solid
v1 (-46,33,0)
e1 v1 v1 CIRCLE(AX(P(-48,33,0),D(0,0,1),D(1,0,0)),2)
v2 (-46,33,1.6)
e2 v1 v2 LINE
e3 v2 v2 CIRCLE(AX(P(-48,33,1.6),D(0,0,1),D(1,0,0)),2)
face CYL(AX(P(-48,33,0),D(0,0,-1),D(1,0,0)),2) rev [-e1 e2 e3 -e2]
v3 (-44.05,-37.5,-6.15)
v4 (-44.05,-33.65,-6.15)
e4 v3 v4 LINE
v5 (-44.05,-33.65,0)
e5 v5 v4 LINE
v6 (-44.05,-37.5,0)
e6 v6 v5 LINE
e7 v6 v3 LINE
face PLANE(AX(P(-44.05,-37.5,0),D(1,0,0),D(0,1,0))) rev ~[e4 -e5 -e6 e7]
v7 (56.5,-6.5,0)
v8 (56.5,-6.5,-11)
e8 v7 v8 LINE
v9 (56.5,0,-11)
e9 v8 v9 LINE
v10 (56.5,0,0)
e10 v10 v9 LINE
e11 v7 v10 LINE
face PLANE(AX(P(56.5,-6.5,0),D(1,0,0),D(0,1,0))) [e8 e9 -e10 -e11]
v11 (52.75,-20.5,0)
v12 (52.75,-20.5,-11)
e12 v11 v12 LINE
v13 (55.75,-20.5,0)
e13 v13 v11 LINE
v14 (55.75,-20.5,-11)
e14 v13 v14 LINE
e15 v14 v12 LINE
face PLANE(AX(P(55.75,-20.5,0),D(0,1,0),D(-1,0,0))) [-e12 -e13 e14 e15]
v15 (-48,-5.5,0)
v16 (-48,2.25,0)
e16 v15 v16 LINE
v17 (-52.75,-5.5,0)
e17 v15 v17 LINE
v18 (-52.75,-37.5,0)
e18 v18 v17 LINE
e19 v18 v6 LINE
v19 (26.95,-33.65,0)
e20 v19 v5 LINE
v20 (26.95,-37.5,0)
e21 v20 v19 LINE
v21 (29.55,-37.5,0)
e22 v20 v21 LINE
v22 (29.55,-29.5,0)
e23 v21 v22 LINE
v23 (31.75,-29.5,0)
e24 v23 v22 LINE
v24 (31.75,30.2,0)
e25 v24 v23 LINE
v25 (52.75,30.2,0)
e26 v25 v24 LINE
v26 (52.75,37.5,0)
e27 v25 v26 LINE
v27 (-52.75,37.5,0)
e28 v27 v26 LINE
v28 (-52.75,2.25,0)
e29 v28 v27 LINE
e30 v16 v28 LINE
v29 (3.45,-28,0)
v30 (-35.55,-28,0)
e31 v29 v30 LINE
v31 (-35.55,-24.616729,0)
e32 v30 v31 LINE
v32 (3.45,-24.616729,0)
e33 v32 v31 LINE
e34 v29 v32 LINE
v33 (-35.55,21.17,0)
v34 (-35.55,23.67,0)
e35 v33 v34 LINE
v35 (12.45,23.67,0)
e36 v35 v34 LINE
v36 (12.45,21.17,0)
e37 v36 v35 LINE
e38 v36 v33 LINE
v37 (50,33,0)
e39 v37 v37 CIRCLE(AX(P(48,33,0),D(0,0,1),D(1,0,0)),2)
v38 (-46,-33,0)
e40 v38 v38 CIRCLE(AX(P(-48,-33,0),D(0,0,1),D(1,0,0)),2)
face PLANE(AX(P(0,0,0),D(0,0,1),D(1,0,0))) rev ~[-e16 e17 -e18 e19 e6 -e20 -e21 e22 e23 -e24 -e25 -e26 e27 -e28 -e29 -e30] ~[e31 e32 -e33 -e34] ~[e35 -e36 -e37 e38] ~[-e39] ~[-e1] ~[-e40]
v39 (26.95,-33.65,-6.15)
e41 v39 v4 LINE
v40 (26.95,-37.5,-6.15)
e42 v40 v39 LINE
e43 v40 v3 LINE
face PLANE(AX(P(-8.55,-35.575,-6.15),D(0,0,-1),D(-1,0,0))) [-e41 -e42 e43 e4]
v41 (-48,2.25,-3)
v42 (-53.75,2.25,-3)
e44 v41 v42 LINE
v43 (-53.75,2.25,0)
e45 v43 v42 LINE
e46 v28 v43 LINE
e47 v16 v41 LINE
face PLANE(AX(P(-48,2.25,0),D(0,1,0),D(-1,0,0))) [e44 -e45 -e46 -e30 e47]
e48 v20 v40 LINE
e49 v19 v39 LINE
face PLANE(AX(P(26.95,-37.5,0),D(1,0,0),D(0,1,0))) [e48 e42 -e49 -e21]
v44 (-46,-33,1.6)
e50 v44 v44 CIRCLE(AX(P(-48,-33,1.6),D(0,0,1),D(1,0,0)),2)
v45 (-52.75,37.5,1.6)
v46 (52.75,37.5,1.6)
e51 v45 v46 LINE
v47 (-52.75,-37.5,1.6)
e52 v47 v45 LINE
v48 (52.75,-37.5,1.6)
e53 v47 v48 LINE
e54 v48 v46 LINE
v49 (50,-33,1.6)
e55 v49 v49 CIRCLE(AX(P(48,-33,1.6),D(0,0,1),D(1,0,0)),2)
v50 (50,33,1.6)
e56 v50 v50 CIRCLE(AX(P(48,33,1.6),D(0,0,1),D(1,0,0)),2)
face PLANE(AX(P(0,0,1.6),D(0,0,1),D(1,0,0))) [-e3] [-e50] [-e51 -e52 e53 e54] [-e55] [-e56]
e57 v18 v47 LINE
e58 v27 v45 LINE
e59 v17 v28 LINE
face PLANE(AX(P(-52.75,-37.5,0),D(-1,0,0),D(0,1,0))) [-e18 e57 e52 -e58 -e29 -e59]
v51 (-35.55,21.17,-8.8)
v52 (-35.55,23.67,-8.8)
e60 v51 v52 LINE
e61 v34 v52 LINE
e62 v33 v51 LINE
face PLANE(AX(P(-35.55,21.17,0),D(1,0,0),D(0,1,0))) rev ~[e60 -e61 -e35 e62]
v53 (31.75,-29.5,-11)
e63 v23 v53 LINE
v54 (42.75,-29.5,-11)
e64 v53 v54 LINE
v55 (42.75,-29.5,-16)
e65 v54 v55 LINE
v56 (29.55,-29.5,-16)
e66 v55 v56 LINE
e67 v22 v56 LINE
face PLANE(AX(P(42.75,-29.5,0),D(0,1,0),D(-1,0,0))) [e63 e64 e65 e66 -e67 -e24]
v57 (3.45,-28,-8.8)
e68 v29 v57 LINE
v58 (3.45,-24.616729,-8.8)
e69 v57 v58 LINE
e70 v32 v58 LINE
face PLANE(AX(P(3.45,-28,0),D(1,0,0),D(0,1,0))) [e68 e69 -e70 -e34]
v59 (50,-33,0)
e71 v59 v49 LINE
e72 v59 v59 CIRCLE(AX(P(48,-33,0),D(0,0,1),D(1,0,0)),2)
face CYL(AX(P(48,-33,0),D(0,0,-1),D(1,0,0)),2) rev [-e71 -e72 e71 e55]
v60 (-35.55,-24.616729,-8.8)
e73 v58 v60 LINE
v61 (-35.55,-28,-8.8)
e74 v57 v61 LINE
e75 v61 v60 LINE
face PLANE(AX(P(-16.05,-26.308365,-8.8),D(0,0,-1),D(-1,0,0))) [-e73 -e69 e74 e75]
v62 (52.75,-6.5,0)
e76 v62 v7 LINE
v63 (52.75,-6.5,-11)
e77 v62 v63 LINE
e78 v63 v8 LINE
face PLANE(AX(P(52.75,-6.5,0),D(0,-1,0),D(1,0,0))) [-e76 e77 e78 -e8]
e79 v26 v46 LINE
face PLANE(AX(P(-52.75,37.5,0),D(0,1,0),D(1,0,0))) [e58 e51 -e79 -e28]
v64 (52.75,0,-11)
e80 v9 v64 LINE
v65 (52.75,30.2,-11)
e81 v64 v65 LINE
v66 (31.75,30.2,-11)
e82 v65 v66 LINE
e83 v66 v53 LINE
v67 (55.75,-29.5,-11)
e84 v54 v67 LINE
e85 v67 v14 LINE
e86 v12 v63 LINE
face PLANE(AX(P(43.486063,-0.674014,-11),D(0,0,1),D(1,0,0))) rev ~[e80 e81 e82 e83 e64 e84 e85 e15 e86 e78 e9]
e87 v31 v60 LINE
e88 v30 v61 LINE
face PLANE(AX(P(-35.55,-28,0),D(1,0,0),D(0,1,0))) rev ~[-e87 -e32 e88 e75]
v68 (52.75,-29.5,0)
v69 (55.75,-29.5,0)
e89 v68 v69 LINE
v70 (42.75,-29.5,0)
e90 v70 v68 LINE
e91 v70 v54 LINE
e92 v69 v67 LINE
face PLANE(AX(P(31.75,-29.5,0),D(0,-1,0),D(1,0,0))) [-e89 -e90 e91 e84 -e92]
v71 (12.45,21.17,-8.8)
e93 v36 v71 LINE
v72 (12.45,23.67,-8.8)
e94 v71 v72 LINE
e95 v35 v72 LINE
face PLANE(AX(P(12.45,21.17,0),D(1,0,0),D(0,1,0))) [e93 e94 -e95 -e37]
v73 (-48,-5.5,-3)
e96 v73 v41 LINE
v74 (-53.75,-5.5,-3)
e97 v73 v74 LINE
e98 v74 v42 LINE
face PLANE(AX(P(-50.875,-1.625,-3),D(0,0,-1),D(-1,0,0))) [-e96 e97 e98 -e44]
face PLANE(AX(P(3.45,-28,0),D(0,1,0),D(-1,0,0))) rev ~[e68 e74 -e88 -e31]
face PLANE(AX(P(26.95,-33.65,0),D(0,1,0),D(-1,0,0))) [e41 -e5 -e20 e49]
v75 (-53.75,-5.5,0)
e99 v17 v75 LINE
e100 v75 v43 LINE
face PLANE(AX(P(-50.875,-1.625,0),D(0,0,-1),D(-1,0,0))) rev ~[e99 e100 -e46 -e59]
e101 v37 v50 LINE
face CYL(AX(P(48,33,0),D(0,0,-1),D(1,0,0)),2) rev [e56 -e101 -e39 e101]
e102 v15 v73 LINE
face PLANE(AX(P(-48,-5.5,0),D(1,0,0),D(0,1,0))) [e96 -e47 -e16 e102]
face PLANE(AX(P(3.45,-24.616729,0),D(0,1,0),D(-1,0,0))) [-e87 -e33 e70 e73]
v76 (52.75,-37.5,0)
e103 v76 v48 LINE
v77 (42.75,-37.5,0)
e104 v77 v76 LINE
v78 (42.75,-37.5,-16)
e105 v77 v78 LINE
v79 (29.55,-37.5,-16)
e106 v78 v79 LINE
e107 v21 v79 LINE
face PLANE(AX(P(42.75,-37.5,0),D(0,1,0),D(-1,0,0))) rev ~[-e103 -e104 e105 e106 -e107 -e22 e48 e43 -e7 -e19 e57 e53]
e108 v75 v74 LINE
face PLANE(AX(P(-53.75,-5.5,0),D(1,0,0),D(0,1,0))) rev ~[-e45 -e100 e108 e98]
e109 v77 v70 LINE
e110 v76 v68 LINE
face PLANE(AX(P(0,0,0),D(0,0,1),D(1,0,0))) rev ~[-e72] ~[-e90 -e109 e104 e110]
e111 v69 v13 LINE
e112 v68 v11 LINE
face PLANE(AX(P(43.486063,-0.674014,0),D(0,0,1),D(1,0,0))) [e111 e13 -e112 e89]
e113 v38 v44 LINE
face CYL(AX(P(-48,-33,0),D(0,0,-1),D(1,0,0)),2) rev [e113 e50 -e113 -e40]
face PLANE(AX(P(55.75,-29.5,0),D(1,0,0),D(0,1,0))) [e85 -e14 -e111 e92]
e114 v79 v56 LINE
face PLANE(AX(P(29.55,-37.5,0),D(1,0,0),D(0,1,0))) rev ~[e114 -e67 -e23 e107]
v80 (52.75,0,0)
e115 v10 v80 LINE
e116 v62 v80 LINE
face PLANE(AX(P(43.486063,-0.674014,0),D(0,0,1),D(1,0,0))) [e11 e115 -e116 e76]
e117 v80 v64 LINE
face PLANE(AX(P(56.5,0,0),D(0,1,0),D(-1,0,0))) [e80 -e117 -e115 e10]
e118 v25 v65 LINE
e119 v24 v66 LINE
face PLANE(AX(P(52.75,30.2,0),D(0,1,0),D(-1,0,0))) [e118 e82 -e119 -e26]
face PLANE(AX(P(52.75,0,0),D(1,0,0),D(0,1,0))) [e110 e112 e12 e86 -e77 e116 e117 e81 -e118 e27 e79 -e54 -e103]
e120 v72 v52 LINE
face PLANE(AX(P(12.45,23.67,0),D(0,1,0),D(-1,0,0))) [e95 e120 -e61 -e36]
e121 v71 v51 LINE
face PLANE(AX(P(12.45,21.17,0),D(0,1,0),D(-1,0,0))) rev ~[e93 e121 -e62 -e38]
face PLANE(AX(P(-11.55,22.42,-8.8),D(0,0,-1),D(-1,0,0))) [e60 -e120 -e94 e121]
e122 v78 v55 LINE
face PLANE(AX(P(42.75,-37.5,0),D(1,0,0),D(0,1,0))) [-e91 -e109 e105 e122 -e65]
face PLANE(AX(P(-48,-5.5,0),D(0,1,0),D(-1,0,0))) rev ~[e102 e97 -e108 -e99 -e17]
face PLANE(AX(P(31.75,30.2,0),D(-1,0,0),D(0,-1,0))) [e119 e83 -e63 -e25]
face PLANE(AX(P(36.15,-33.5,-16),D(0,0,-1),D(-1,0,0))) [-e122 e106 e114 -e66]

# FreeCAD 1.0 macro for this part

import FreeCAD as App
import Part
import Sketcher

doc = App.newDocument("Part")
body = doc.addObject("PartDesign::Body", "Body")

# Sketch on XY plane
sketch1 = body.newObject("Sketcher::SketchObject", "Sketch")
sketch1.AttachmentSupport = (doc.getObject("XY_Plane"), [""])
sketch1.MapMode = "FlatFace"
sketch1.addGeometry([
    Part.LineSegment(App.Vector(-52.8, 37.5, 0), App.Vector(-52.8, -37.5, 0)),  # 0
    Part.LineSegment(App.Vector(-52.8, -37.5, 0), App.Vector(52.8, -37.5, 0)),  # 1
    Part.LineSegment(App.Vector(52.8, -37.5, 0), App.Vector(52.8, 37.5, 0)),  # 2
    Part.LineSegment(App.Vector(52.8, 37.5, 0), App.Vector(-52.8, 37.5, 0)),  # 3
    Part.Circle(App.Vector(-48, -33, 0), App.Vector(0, 0, 1), 2),  # 4
    Part.Circle(App.Vector(48, -33, 0), App.Vector(0, 0, 1), 2),  # 5
    Part.Circle(App.Vector(-48, 33, 0), App.Vector(0, 0, 1), 2),  # 6
    Part.Circle(App.Vector(48, 33, 0), App.Vector(0, 0, 1), 2),  # 7
], False)
sketch1.addConstraint([
    Sketcher.Constraint("Coincident", 0, 2, 1, 1),
    Sketcher.Constraint("Coincident", 1, 2, 2, 1),
    Sketcher.Constraint("Coincident", 2, 2, 3, 1),
    Sketcher.Constraint("Coincident", 3, 2, 0, 1),
    Sketcher.Constraint("Vertical", 0),
    Sketcher.Constraint("Horizontal", 1),
    Sketcher.Constraint("Vertical", 2),
    Sketcher.Constraint("Horizontal", 3),
    Sketcher.Constraint("Equal", 4, 5),
    Sketcher.Constraint("Equal", 5, 6),
    Sketcher.Constraint("Equal", 6, 7),
    Sketcher.Constraint("Symmetric", 5, 3, 6, 3, -1, 1),
    Sketcher.Constraint("Symmetric", 4, 3, 7, 3, -1, 1),
    Sketcher.Constraint("Symmetric", 0, 2, 2, 2, -1, 1),
    Sketcher.Constraint("Symmetric", 4, 3, 5, 3, -2),
    Sketcher.Constraint("Diameter", 4, 4.0),
    Sketcher.Constraint("DistanceY", 0, 2, 0, 1, 75.0),
    Sketcher.Constraint("DistanceX", 1, 1, 1, 2, 105.5),
    Sketcher.Constraint("DistanceX", 4, 3, -1, 1, 48.0),
    Sketcher.Constraint("DistanceY", 4, 3, -1, 1, 33.0),
])
pad1 = body.newObject("PartDesign::Pad", "Pad")
pad1.Profile = sketch1
pad1.Length = 1.6

# Sketch on XY plane
sketch2 = body.newObject("Sketcher::SketchObject", "Sketch001")
sketch2.AttachmentSupport = (doc.getObject("XY_Plane"), [""])
sketch2.MapMode = "FlatFace"
sketch2.addGeometry([
    Part.LineSegment(App.Vector(31.8, 30.2, 0), App.Vector(52.8, 30.2, 0)),  # 0
    Part.LineSegment(App.Vector(52.8, 30.2, 0), App.Vector(52.8, 0, 0)),  # 1
    Part.LineSegment(App.Vector(52.8, 0, 0), App.Vector(56.5, 0, 0)),  # 2
    Part.LineSegment(App.Vector(56.5, 0, 0), App.Vector(56.5, -6.5, 0)),  # 3
    Part.LineSegment(App.Vector(56.5, -6.5, 0), App.Vector(52.8, -6.5, 0)),  # 4
    Part.LineSegment(App.Vector(52.8, -6.5, 0), App.Vector(52.8, -20.5, 0)),  # 5
    Part.LineSegment(App.Vector(52.8, -20.5, 0), App.Vector(55.8, -20.5, 0)),  # 6
    Part.LineSegment(App.Vector(55.8, -20.5, 0), App.Vector(55.8, -29.5, 0)),  # 7
    Part.LineSegment(App.Vector(55.8, -29.5, 0), App.Vector(31.8, -29.5, 0)),  # 8
    Part.LineSegment(App.Vector(31.8, -29.5, 0), App.Vector(31.8, 30.2, 0)),  # 9
], False)
sketch2.addConstraint([
    Sketcher.Constraint("Coincident", 0, 2, 1, 1),
    Sketcher.Constraint("Coincident", 1, 2, 2, 1),
    Sketcher.Constraint("Coincident", 2, 2, 3, 1),
    Sketcher.Constraint("Coincident", 3, 2, 4, 1),
    Sketcher.Constraint("Coincident", 4, 2, 5, 1),
    Sketcher.Constraint("Coincident", 5, 2, 6, 1),
    Sketcher.Constraint("Coincident", 6, 2, 7, 1),
    Sketcher.Constraint("Coincident", 7, 2, 8, 1),
    Sketcher.Constraint("Coincident", 8, 2, 9, 1),
    Sketcher.Constraint("Coincident", 9, 2, 0, 1),
    Sketcher.Constraint("Horizontal", 0),
    Sketcher.Constraint("Vertical", 1),
    Sketcher.Constraint("Horizontal", 2),
    Sketcher.Constraint("Vertical", 3),
    Sketcher.Constraint("Horizontal", 4),
    Sketcher.Constraint("Vertical", 5),
    Sketcher.Constraint("Horizontal", 6),
    Sketcher.Constraint("Vertical", 7),
    Sketcher.Constraint("Horizontal", 8),
    Sketcher.Constraint("Vertical", 9),
    Sketcher.Constraint("PointOnObject", 1, 2, -1),
    Sketcher.Constraint("Vertical", 1, 2, 4, 2),
    Sketcher.Constraint("DistanceX", 0, 1, 0, 2, 21.0),
    Sketcher.Constraint("DistanceX", 6, 1, 6, 2, 3.0),
    Sketcher.Constraint("DistanceY", 5, 2, 5, 1, 14.0),
    Sketcher.Constraint("DistanceY", 7, 2, 7, 1, 9.0),
    Sketcher.Constraint("DistanceY", 1, 2, 1, 1, 30.2),
    Sketcher.Constraint("DistanceY", 3, 2, 3, 1, 6.5),
    Sketcher.Constraint("DistanceX", 2, 1, 2, 2, 3.75),
    Sketcher.Constraint("DistanceX", -1, 1, 2, 2, 56.5),
])
pad2 = body.newObject("PartDesign::Pad", "Pad001")
pad2.Profile = sketch2
pad2.Length = 11
pad2.Reversed = True

# Sketch on XY plane
sketch3 = body.newObject("Sketcher::SketchObject", "Sketch002")
sketch3.AttachmentSupport = (doc.getObject("XY_Plane"), [""])
sketch3.MapMode = "FlatFace"
sketch3.addGeometry([
    Part.LineSegment(App.Vector(43, -30, 0), App.Vector(43, -38, 0)),
    Part.LineSegment(App.Vector(43, -38, 0), App.Vector(30, -38, 0)),
    Part.LineSegment(App.Vector(30, -38, 0), App.Vector(30, -30, 0)),
    Part.LineSegment(App.Vector(30, -30, 0), App.Vector(43, -30, 0)),
], False)
sketch3.addConstraint([
    Sketcher.Constraint("Coincident", 0, 2, 1, 1),
    Sketcher.Constraint("Coincident", 1, 2, 2, 1),
    Sketcher.Constraint("Coincident", 2, 2, 3, 1),
    Sketcher.Constraint("Coincident", 3, 2, 0, 1),
    Sketcher.Constraint("Vertical", 0),
    Sketcher.Constraint("Horizontal", 1),
    Sketcher.Constraint("Vertical", 2),
    Sketcher.Constraint("Horizontal", 3),
    Sketcher.Constraint("DistanceY", 0, 2, 0, 1, 8.0),
    Sketcher.Constraint("DistanceX", 1, 2, 1, 1, 13.2),
    Sketcher.Constraint("DistanceY", 0, 2, -1, 1, 37.5),
    Sketcher.Constraint("DistanceX", -1, 1, 0, 2, 42.75),
])
pad3 = body.newObject("PartDesign::Pad", "Pad002")
pad3.Profile = sketch3
pad3.Length = 16
pad3.Reversed = True

# Sketch on XY plane
sketch4 = body.newObject("Sketcher::SketchObject", "Sketch003")
sketch4.AttachmentSupport = (doc.getObject("XY_Plane"), [""])
sketch4.MapMode = "FlatFace"
sketch4.addGeometry([
    Part.LineSegment(App.Vector(26.9, -33.6, 0), App.Vector(26.9, -37.5, 0)),
    Part.LineSegment(App.Vector(26.9, -37.5, 0), App.Vector(-44, -37.5, 0)),
    Part.LineSegment(App.Vector(-44, -37.5, 0), App.Vector(-44, -33.6, 0)),
    Part.LineSegment(App.Vector(-44, -33.6, 0), App.Vector(26.9, -33.6, 0)),
], False)
sketch4.addConstraint([
    Sketcher.Constraint("Coincident", 0, 2, 1, 1),
    Sketcher.Constraint("Coincident", 1, 2, 2, 1),
    Sketcher.Constraint("Coincident", 2, 2, 3, 1),
    Sketcher.Constraint("Coincident", 3, 2, 0, 1),
    Sketcher.Constraint("Vertical", 0),
    Sketcher.Constraint("Horizontal", 1),
    Sketcher.Constraint("Vertical", 2),
    Sketcher.Constraint("Horizontal", 3),
    Sketcher.Constraint("DistanceX", 1, 2, 1, 1, 71.0),
    Sketcher.Constraint("DistanceY", 0, 2, 0, 1, 3.85),
    Sketcher.Constraint("DistanceY", 0, 2, -1, 1, 37.5),
    Sketcher.Constraint("DistanceX", -1, 1, 0, 2, 26.95),
])
pad4 = body.newObject("PartDesign::Pad", "Pad003")
pad4.Profile = sketch4
pad4.Length = 6.15
pad4.Reversed = True

# Sketch on XY plane
sketch5 = body.newObject("Sketcher::SketchObject", "Sketch004")
sketch5.AttachmentSupport = (doc.getObject("XY_Plane"), [""])
sketch5.MapMode = "FlatFace"
sketch5.addGeometry([
    Part.LineSegment(App.Vector(12.4, 23.7, 0), App.Vector(12.4, 21.2, 0)),  # 0
    Part.LineSegment(App.Vector(12.4, 21.2, 0), App.Vector(-35.5, 21.2, 0)),  # 1
    Part.LineSegment(App.Vector(-35.5, 21.2, 0), App.Vector(-35.5, 23.7, 0)),  # 2
    Part.LineSegment(App.Vector(-35.5, 23.7, 0), App.Vector(12.4, 23.7, 0)),  # 3
    Part.LineSegment(App.Vector(3.5, -24.6, 0), App.Vector(3.5, -28, 0)),  # 4
    Part.LineSegment(App.Vector(3.5, -28, 0), App.Vector(-35.5, -28, 0)),  # 5
    Part.LineSegment(App.Vector(-35.5, -28, 0), App.Vector(-35.5, -24.6, 0)),  # 6
    Part.LineSegment(App.Vector(-35.5, -24.6, 0), App.Vector(3.5, -24.6, 0)),  # 7
], False)
sketch5.addConstraint([
    Sketcher.Constraint("Coincident", 0, 2, 1, 1),
    Sketcher.Constraint("Coincident", 1, 2, 2, 1),
    Sketcher.Constraint("Coincident", 2, 2, 3, 1),
    Sketcher.Constraint("Coincident", 3, 2, 0, 1),
    Sketcher.Constraint("Coincident", 4, 2, 5, 1),
    Sketcher.Constraint("Coincident", 5, 2, 6, 1),
    Sketcher.Constraint("Coincident", 6, 2, 7, 1),
    Sketcher.Constraint("Coincident", 7, 2, 4, 1),
    Sketcher.Constraint("Vertical", 0),
    Sketcher.Constraint("Horizontal", 1),
    Sketcher.Constraint("Vertical", 2),
    Sketcher.Constraint("Horizontal", 3),
    Sketcher.Constraint("Vertical", 4),
    Sketcher.Constraint("Horizontal", 5),
    Sketcher.Constraint("Vertical", 6),
    Sketcher.Constraint("Horizontal", 7),
    Sketcher.Constraint("Vertical", 2, 2, 5, 2),
    Sketcher.Constraint("DistanceX", 1, 2, 1, 1, 48.0),
    Sketcher.Constraint("DistanceX", 5, 2, 5, 1, 39.0),
    Sketcher.Constraint("DistanceY", 0, 2, 0, 1, 2.5),
    Sketcher.Constraint("DistanceY", 4, 2, -1, 1, 28.0),
    Sketcher.Constraint("DistanceX", -1, 1, 0, 2, 12.45),
    Sketcher.Constraint("DistanceY", -1, 1, 0, 2, 21.17),
    Sketcher.Constraint("DistanceY", 4, 2, 4, 1, 3.383271),
])
pad5 = body.newObject("PartDesign::Pad", "Pad004")
pad5.Profile = sketch5
pad5.Length = 8.8
pad5.Reversed = True

# Sketch on XY plane
sketch6 = body.newObject("Sketcher::SketchObject", "Sketch005")
sketch6.AttachmentSupport = (doc.getObject("XY_Plane"), [""])
sketch6.MapMode = "FlatFace"
sketch6.addGeometry([
    Part.LineSegment(App.Vector(-48, 2, 0), App.Vector(-48, -6, 0)),
    Part.LineSegment(App.Vector(-48, -6, 0), App.Vector(-54, -6, 0)),
    Part.LineSegment(App.Vector(-54, -6, 0), App.Vector(-54, 2, 0)),
    Part.LineSegment(App.Vector(-54, 2, 0), App.Vector(-48, 2, 0)),
], False)
sketch6.addConstraint([
    Sketcher.Constraint("Coincident", 0, 2, 1, 1),
    Sketcher.Constraint("Coincident", 1, 2, 2, 1),
    Sketcher.Constraint("Coincident", 2, 2, 3, 1),
    Sketcher.Constraint("Coincident", 3, 2, 0, 1),
    Sketcher.Constraint("Vertical", 0),
    Sketcher.Constraint("Horizontal", 1),
    Sketcher.Constraint("Vertical", 2),
    Sketcher.Constraint("Horizontal", 3),
    Sketcher.Constraint("DistanceX", 0, 2, -1, 1, 48.0),
    Sketcher.Constraint("DistanceX", 1, 2, 1, 1, 5.75),
    Sketcher.Constraint("DistanceY", 0, 2, 0, 1, 7.75),
    Sketcher.Constraint("DistanceY", 0, 2, -1, 1, 5.5),
])
pad6 = body.newObject("PartDesign::Pad", "Pad005")
pad6.Profile = sketch6
pad6.Length = 3
pad6.Reversed = True

doc.recompute()
